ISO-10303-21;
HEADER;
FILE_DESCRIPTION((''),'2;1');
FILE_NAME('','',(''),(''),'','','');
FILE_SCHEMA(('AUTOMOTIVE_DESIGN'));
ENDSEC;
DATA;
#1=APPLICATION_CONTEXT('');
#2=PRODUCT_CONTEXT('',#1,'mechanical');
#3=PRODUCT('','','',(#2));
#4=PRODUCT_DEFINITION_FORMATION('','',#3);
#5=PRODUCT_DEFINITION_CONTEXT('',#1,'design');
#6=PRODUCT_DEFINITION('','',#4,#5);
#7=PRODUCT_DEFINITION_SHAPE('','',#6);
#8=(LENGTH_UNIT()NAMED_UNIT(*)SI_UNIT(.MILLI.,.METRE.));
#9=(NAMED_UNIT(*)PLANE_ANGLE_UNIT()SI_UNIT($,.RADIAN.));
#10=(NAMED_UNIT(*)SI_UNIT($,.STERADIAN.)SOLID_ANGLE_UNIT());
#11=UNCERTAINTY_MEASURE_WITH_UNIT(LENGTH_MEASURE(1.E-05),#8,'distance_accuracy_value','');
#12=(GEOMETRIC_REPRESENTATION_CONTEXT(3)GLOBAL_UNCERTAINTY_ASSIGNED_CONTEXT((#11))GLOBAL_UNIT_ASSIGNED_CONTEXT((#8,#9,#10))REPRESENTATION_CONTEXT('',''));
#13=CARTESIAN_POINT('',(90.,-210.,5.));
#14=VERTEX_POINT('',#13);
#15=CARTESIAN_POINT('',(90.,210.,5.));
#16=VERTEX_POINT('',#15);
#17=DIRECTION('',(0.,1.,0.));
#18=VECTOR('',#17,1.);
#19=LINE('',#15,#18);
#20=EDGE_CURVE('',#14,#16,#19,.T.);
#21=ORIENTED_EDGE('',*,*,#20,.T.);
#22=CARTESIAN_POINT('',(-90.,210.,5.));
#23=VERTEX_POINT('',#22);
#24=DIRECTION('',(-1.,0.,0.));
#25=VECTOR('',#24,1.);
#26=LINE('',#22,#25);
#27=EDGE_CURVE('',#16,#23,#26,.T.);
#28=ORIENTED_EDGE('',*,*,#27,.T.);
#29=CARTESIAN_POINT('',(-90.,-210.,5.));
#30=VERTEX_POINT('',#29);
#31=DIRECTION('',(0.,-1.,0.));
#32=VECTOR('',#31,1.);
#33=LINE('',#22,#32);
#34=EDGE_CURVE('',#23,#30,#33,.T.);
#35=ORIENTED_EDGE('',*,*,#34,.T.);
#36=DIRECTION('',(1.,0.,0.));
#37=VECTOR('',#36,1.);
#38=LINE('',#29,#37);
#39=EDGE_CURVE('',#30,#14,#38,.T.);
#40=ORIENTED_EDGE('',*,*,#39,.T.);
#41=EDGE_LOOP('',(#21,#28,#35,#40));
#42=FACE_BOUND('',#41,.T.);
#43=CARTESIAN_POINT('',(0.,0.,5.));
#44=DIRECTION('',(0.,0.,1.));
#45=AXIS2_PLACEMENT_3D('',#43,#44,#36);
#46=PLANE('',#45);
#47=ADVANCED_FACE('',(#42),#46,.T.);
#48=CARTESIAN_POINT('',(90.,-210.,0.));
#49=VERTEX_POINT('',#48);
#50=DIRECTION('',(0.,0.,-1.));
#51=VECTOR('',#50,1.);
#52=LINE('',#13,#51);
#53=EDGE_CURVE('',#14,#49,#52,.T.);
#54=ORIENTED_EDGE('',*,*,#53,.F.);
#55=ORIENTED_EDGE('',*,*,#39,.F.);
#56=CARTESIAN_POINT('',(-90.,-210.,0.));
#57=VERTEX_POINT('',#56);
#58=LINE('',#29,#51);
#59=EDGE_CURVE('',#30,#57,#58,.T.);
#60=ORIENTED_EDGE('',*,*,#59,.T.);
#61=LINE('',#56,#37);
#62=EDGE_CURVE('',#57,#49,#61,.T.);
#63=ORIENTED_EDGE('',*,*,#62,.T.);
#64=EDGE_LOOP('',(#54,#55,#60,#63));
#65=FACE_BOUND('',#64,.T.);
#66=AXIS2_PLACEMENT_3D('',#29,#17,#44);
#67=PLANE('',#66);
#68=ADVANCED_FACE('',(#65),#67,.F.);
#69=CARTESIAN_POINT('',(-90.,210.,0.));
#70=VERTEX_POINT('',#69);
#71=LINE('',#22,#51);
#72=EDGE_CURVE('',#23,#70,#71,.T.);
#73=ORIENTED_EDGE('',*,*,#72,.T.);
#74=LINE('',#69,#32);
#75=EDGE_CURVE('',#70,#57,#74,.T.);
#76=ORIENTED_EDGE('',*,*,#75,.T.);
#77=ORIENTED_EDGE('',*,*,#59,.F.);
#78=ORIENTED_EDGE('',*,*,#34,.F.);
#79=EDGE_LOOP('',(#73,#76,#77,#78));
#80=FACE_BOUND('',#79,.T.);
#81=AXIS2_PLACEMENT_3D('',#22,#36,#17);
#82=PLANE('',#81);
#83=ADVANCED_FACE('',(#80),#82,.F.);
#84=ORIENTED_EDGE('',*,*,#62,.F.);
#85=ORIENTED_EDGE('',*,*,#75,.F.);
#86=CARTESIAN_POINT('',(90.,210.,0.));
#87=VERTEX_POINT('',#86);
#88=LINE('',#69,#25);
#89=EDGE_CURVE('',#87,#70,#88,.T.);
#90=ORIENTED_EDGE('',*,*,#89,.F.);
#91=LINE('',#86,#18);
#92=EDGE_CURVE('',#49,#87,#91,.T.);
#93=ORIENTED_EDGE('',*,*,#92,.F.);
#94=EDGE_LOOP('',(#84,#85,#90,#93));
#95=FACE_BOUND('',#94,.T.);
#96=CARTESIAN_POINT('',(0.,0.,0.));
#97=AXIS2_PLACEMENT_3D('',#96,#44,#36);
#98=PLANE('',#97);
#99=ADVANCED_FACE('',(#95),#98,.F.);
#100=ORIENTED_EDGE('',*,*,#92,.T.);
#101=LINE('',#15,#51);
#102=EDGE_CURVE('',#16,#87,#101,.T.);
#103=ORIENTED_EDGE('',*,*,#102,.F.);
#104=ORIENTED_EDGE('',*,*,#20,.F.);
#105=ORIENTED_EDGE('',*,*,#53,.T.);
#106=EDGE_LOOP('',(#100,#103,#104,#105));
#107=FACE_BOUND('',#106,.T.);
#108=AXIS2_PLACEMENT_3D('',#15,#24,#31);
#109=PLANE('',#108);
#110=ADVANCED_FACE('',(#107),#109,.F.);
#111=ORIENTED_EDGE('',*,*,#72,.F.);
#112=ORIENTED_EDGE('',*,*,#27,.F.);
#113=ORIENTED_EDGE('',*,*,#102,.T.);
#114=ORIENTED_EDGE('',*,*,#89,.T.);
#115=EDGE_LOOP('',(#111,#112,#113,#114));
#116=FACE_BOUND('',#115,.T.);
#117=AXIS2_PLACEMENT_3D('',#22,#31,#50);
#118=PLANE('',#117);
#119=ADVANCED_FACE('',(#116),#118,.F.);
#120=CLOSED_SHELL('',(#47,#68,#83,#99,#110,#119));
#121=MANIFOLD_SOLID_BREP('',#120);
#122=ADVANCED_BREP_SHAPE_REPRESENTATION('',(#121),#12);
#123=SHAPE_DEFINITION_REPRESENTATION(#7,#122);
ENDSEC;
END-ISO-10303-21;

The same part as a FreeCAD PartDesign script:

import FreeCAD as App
import Part
import Sketcher
from FreeCAD import Vector
Q = App.Units.Quantity

doc = App.newDocument("Part")
params = doc.addObject("Spreadsheet::Sheet", "Params")
for row, (alias, value) in enumerate([
    ("sketch1_width", "180 mm"),
    ("sketch1_height", "420 mm"),
    ("pad1_length", "5 mm"),
], start=1):
    params.set(f"A{row}", alias)
    params.set(f"B{row}", "=" + value)
    params.setAlias(f"B{row}", alias)

body = doc.addObject("PartDesign::Body", "Body")

sketch1 = body.newObject("Sketcher::SketchObject", "Sketch")
sketch1.AttachmentSupport = (doc.getObject("XY_Plane"), [""])
sketch1.MapMode = "FlatFace"
sketch1.addGeometry([
    Part.LineSegment(Vector(-90, 210, 0), Vector(-90, -210, 0)),
    Part.LineSegment(Vector(-90, -210, 0), Vector(90, -210, 0)),
    Part.LineSegment(Vector(90, -210, 0), Vector(90, 210, 0)),
    Part.LineSegment(Vector(90, 210, 0), Vector(-90, 210, 0)),
], False)
sketch1.addConstraint([
    Sketcher.Constraint("Coincident", 0, 2, 1, 1),
    Sketcher.Constraint("Coincident", 1, 2, 2, 1),
    Sketcher.Constraint("Coincident", 2, 2, 3, 1),
    Sketcher.Constraint("Coincident", 3, 2, 0, 1),
    Sketcher.Constraint("Vertical", 0),
    Sketcher.Constraint("Horizontal", 1),
    Sketcher.Constraint("Vertical", 2),
    Sketcher.Constraint("Horizontal", 3),
    Sketcher.Constraint("Symmetric", 0, 2, 2, 2, -1, 1),
    Sketcher.Constraint("DistanceX", 1, 1, 1, 2, Q("180 mm")),
    Sketcher.Constraint("DistanceY", 0, 2, 0, 1, Q("420 mm")),
])
sketch1.setExpression("Constraints[9]", "Params.sketch1_width")
sketch1.setExpression("Constraints[10]", "Params.sketch1_height")
pad1 = body.newObject("PartDesign::Pad", "Pad")
pad1.Profile = sketch1
pad1.setExpression("Length", "Params.pad1_length")

doc.recompute()
